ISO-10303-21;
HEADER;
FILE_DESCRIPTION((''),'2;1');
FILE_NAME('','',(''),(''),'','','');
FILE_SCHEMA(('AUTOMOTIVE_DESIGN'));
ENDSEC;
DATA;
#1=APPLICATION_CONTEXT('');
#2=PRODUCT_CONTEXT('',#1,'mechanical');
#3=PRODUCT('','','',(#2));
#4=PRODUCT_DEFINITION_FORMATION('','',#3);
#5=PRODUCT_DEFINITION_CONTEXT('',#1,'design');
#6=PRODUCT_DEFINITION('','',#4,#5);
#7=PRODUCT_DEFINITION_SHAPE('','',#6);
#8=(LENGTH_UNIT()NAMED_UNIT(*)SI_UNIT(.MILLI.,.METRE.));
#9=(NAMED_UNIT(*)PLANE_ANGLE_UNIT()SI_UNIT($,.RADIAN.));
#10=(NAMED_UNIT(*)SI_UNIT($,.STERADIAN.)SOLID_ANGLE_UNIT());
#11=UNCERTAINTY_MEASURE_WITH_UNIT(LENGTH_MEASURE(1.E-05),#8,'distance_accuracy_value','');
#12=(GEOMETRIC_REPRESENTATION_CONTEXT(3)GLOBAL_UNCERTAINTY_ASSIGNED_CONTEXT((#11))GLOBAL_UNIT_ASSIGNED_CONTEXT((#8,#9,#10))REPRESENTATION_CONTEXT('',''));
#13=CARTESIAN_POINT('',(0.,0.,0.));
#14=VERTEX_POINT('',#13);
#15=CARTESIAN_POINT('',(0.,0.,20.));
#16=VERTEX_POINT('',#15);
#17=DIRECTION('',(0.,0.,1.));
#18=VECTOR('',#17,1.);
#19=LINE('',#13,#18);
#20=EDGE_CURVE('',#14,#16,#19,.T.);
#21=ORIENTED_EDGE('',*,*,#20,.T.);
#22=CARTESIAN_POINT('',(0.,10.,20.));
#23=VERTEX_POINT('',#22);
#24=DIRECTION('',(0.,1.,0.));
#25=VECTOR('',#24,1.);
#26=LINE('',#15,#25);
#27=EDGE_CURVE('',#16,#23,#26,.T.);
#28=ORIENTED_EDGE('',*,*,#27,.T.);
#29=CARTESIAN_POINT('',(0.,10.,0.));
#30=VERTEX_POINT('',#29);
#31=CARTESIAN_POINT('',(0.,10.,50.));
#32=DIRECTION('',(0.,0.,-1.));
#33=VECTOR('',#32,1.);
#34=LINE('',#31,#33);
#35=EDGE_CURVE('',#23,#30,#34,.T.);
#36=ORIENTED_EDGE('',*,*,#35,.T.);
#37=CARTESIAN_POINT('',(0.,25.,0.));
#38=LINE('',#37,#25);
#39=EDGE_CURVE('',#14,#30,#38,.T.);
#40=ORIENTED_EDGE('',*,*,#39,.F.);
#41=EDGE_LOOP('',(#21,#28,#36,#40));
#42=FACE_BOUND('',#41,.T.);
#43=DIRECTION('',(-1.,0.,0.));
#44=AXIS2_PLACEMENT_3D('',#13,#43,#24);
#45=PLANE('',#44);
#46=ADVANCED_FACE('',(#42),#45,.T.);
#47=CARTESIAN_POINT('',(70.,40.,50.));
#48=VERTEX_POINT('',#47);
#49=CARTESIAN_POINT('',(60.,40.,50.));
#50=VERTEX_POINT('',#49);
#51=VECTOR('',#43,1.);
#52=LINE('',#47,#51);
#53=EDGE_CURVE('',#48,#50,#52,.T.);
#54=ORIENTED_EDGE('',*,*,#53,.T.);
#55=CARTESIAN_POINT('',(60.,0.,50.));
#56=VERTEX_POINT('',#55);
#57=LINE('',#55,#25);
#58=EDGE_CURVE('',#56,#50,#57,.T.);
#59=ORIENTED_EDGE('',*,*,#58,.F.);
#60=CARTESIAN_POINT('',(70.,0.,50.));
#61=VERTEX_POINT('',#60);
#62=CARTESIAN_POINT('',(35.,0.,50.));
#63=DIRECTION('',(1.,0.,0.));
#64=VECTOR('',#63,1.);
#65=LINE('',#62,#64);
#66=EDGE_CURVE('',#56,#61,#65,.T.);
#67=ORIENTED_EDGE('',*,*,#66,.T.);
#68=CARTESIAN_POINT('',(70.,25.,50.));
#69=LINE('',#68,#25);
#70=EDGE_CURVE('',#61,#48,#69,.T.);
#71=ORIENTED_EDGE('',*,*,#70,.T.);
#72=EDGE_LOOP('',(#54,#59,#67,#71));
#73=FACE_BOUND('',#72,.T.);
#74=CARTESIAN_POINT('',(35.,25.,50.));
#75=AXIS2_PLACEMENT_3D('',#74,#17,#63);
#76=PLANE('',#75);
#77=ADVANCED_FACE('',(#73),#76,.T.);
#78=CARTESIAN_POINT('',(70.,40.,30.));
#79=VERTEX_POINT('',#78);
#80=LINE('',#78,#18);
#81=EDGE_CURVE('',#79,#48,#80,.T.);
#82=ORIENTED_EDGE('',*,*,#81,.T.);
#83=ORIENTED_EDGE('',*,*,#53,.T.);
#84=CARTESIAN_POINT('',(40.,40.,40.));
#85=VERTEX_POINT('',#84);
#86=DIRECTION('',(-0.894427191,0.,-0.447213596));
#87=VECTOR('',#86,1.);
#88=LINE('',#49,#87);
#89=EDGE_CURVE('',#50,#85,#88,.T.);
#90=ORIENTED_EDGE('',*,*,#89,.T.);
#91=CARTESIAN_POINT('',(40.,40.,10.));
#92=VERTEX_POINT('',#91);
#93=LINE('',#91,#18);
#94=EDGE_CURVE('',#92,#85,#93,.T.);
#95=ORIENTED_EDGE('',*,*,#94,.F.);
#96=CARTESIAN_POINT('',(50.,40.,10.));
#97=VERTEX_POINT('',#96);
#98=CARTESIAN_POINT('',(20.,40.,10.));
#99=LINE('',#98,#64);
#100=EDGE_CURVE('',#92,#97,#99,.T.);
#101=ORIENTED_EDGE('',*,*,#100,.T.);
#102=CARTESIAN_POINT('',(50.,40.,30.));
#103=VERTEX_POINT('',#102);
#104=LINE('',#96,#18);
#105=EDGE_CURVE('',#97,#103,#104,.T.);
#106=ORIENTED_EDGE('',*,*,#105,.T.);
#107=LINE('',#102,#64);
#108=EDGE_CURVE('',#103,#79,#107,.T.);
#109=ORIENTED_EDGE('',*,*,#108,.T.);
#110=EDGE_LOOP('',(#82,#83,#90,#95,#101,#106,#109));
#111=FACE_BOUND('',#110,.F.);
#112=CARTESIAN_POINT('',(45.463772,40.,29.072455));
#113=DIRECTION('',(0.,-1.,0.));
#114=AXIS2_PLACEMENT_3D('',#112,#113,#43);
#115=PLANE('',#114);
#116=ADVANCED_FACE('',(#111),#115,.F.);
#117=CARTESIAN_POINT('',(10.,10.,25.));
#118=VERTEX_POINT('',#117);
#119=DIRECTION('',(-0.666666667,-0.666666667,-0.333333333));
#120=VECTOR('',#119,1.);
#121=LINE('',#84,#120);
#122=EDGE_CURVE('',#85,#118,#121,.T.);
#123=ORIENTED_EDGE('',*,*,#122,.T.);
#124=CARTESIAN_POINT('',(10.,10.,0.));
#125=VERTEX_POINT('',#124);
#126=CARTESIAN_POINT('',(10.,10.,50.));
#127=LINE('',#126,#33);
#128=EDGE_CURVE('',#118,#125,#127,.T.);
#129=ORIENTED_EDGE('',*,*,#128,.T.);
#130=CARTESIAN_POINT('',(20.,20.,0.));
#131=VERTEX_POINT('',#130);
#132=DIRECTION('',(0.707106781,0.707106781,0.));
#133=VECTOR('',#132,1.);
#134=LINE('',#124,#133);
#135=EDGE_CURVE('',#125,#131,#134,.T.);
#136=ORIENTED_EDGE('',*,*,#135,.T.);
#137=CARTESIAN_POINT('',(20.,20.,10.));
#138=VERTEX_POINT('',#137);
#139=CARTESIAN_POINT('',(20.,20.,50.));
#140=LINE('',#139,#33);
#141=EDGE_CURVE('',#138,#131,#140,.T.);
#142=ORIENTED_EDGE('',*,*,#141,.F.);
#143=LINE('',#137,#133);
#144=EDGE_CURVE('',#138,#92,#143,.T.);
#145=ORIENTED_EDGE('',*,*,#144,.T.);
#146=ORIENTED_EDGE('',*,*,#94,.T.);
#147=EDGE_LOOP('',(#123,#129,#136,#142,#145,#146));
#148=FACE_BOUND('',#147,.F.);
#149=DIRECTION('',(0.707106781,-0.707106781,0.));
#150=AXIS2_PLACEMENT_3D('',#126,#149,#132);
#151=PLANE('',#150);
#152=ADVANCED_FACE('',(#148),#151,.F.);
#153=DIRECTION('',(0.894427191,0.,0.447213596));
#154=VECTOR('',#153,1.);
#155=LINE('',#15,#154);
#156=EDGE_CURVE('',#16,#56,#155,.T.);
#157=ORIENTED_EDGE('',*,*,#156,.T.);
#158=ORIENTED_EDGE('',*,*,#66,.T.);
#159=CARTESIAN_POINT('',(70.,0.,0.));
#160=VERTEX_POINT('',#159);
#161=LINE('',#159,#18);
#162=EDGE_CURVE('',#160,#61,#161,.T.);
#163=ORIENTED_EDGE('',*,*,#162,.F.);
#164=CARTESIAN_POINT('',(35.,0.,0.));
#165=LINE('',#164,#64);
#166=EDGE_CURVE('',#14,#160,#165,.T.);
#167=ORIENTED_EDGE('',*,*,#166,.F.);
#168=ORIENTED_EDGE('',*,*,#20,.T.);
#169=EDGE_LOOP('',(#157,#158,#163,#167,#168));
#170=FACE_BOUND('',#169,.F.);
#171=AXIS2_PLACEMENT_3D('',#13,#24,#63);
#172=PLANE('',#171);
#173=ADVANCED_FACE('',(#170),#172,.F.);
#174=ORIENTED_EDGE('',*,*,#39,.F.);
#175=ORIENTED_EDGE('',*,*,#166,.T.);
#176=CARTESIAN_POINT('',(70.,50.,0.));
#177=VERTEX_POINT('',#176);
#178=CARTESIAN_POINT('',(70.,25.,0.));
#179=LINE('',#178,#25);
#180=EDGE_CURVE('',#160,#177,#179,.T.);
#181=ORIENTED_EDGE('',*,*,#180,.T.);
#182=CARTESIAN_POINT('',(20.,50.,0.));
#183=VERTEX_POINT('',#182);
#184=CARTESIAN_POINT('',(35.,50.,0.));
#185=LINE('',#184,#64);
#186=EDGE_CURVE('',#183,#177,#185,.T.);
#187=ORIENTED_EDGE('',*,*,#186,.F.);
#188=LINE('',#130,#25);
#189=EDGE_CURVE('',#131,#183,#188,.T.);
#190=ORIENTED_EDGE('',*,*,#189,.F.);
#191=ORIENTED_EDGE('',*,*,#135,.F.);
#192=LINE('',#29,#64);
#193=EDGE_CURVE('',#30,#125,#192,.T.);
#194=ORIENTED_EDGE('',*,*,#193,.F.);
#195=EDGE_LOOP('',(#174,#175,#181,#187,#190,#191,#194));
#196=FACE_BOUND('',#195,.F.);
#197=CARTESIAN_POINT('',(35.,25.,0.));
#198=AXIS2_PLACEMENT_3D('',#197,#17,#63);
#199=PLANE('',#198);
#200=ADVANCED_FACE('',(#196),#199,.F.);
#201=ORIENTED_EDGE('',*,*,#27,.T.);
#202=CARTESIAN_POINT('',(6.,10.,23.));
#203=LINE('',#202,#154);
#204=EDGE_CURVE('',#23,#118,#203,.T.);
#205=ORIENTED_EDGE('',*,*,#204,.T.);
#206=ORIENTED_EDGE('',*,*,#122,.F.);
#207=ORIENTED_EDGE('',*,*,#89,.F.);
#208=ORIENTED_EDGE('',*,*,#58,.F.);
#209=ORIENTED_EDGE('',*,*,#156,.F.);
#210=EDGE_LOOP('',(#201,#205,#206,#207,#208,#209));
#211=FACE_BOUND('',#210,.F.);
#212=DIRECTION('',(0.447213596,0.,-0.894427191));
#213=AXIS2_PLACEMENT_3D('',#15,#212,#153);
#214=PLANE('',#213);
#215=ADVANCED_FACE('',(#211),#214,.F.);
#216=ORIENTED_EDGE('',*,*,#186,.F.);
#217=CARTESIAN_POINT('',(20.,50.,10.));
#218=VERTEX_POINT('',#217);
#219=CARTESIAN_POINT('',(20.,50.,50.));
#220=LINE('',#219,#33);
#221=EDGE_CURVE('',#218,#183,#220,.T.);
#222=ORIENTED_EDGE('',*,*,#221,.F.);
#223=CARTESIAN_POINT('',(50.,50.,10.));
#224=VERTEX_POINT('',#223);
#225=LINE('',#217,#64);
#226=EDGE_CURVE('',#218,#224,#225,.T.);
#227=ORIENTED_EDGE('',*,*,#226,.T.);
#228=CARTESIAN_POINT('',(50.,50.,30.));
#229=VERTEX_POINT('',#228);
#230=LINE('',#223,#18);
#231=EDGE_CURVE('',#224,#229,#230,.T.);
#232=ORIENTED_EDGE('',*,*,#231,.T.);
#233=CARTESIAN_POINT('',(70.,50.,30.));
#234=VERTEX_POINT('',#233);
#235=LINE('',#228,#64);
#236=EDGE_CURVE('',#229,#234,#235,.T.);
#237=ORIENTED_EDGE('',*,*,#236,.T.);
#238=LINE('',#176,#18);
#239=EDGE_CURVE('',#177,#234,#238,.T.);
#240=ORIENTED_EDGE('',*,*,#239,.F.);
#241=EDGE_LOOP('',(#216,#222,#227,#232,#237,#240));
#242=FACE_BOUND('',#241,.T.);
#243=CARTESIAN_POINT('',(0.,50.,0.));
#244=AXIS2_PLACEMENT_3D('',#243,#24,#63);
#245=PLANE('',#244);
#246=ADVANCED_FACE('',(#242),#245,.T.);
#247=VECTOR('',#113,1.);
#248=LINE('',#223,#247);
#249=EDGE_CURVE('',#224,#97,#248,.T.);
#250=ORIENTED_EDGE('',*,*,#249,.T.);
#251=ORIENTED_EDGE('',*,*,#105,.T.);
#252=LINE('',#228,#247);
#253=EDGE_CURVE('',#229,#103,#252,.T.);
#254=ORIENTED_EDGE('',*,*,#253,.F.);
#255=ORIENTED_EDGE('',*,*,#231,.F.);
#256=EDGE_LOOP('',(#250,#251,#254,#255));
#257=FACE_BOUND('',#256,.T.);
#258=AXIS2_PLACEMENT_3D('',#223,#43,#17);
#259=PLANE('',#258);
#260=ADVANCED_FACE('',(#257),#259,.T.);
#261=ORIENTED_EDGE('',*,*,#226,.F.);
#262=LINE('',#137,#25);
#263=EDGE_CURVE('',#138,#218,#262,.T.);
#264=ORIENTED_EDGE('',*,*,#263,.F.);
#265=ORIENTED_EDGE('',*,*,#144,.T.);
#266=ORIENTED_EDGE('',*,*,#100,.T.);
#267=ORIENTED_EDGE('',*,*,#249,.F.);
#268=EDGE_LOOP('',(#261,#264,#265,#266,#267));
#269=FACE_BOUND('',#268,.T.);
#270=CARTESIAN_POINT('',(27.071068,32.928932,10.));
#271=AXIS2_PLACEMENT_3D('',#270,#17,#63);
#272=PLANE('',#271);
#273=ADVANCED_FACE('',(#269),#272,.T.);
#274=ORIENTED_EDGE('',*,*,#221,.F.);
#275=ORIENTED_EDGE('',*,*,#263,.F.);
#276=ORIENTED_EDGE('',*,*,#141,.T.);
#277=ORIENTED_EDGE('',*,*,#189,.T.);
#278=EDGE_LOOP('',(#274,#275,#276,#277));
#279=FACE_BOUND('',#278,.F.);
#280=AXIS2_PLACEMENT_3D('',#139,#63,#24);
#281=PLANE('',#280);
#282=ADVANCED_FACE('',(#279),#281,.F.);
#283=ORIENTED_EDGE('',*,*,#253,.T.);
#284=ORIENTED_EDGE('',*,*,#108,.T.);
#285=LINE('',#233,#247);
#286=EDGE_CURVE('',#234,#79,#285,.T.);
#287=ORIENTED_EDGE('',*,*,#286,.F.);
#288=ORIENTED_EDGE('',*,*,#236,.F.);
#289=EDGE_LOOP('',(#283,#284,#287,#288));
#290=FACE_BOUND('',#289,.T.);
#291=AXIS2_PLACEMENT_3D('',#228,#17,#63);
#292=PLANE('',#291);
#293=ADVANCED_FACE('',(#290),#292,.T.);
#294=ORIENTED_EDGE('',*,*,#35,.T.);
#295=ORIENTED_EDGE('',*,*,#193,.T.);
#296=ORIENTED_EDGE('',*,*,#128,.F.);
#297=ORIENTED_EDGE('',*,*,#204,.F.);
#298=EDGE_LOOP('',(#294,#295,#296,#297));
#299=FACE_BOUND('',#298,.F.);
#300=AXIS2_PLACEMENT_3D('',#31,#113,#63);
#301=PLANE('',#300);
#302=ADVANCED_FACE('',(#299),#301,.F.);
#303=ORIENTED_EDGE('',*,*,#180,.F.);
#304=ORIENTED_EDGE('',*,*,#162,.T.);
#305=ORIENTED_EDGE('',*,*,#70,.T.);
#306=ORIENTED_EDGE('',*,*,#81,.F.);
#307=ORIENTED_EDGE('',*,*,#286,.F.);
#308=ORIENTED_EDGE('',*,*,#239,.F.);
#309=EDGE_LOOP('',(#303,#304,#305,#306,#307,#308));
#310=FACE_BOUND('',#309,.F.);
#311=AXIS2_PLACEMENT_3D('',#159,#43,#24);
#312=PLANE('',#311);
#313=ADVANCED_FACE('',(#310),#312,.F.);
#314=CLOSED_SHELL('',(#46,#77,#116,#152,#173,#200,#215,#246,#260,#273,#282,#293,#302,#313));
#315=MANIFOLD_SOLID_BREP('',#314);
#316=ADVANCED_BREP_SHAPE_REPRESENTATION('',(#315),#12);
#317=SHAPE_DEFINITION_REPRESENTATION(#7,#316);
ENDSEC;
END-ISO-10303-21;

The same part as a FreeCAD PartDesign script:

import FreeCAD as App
import Part
import Sketcher

doc = App.newDocument("Part")
body = doc.addObject("PartDesign::Body", "Body")

sketch1 = body.newObject("Sketcher::SketchObject", "Sketch")
sketch1.AttachmentSupport = (doc.getObject("XY_Plane"), [""])
sketch1.MapMode = "FlatFace"
sketch1.addGeometry([
    Part.LineSegment(App.Vector(0, 50, 0), App.Vector(0, 0, 0)),
    Part.LineSegment(App.Vector(0, 0, 0), App.Vector(70, 0, 0)),
    Part.LineSegment(App.Vector(70, 0, 0), App.Vector(70, 50, 0)),
    Part.LineSegment(App.Vector(70, 50, 0), App.Vector(0, 50, 0)),
], False)
sketch1.addConstraint([
    Sketcher.Constraint("Coincident", 0, 2, 1, 1),
    Sketcher.Constraint("Coincident", 1, 2, 2, 1),
    Sketcher.Constraint("Coincident", 2, 2, 3, 1),
    Sketcher.Constraint("Coincident", 3, 2, 0, 1),
    Sketcher.Constraint("Vertical", 0),
    Sketcher.Constraint("Horizontal", 1),
    Sketcher.Constraint("Vertical", 2),
    Sketcher.Constraint("Horizontal", 3),
    Sketcher.Constraint("Coincident", 0, 2, -1, 1),
    Sketcher.Constraint("DistanceX", 1, 1, 1, 2, 70.0),
    Sketcher.Constraint("DistanceY", 0, 2, 0, 1, 50.0),
])
pad1 = body.newObject("PartDesign::Pad", "Pad")
pad1.Profile = sketch1
pad1.Length = 50

sketch2 = body.newObject("Sketcher::SketchObject", "Sketch001")
sketch2.AttachmentSupport = (doc.getObject("XY_Plane"), [""])
sketch2.MapMode = "FlatFace"
sketch2.AttachmentOffset = App.Placement(App.Vector(0, 0, 50), App.Rotation())
sketch2.addGeometry([
    Part.LineSegment(App.Vector(0, 10, 0), App.Vector(10, 10, 0)),
    Part.LineSegment(App.Vector(10, 10, 0), App.Vector(20, 20, 0)),
    Part.LineSegment(App.Vector(20, 20, 0), App.Vector(20, 50, 0)),
    Part.LineSegment(App.Vector(20, 50, 0), App.Vector(0, 50, 0)),
    Part.LineSegment(App.Vector(0, 50, 0), App.Vector(0, 10, 0)),
], False)
sketch2.addConstraint([
    Sketcher.Constraint("Coincident", 0, 2, 1, 1),
    Sketcher.Constraint("Coincident", 1, 2, 2, 1),
    Sketcher.Constraint("Coincident", 2, 2, 3, 1),
    Sketcher.Constraint("Coincident", 3, 2, 4, 1),
    Sketcher.Constraint("Coincident", 4, 2, 0, 1),
    Sketcher.Constraint("Horizontal", 0),
    Sketcher.Constraint("Vertical", 2),
    Sketcher.Constraint("Horizontal", 3),
    Sketcher.Constraint("Vertical", 4),
    Sketcher.Constraint("PointOnObject", 3, 2, -2),
    Sketcher.Constraint("DistanceX", 0, 1, 0, 2, 10.0),
    Sketcher.Constraint("DistanceX", 3, 2, 3, 1, 20.0),
    Sketcher.Constraint("DistanceY", 2, 1, 2, 2, 30.0),
    Sketcher.Constraint("DistanceY", 4, 2, 4, 1, 40.0),
    Sketcher.Constraint("DistanceY", -1, 1, 0, 2, 10.0),
])
pocket1 = body.newObject("PartDesign::Pocket", "Pocket")
pocket1.Profile = sketch2
pocket1.Length = 50

sketch3 = body.newObject("Sketcher::SketchObject", "Sketch002")
sketch3.AttachmentSupport = (doc.getObject("XZ_Plane"), [""])
sketch3.MapMode = "FlatFace"
sketch3.addGeometry([
    Part.LineSegment(App.Vector(0, 20, 0), App.Vector(60, 50, 0)),
    Part.LineSegment(App.Vector(60, 50, 0), App.Vector(0, 50, 0)),
    Part.LineSegment(App.Vector(0, 50, 0), App.Vector(0, 20, 0)),
], False)
sketch3.addConstraint([
    Sketcher.Constraint("Coincident", 0, 2, 1, 1),
    Sketcher.Constraint("Coincident", 1, 2, 2, 1),
    Sketcher.Constraint("Coincident", 2, 2, 0, 1),
    Sketcher.Constraint("Horizontal", 1),
    Sketcher.Constraint("Vertical", 2),
    Sketcher.Constraint("PointOnObject", 1, 2, -2),
    Sketcher.Constraint("DistanceX", 1, 2, 1, 1, 60.0),
    Sketcher.Constraint("DistanceY", 2, 2, 2, 1, 30.0),
    Sketcher.Constraint("DistanceY", -1, 1, 0, 2, 50.0),
])
pocket2 = body.newObject("PartDesign::Pocket", "Pocket001")
pocket2.Profile = sketch3
pocket2.Length = 50

sketch4 = body.newObject("Sketcher::SketchObject", "Sketch003")
sketch4.AttachmentSupport = (doc.getObject("XZ_Plane"), [""])
sketch4.MapMode = "FlatFace"
sketch4.AttachmentOffset = App.Placement(App.Vector(0, 0, -50), App.Rotation())
sketch4.addGeometry([
    Part.LineSegment(App.Vector(50, 10, 0), App.Vector(20, 10, 0)),
    Part.LineSegment(App.Vector(20, 10, 0), App.Vector(20, 30, 0)),
    Part.LineSegment(App.Vector(20, 30, 0), App.Vector(60, 50, 0)),
    Part.LineSegment(App.Vector(60, 50, 0), App.Vector(70, 50, 0)),
    Part.LineSegment(App.Vector(70, 50, 0), App.Vector(70, 30, 0)),
    Part.LineSegment(App.Vector(70, 30, 0), App.Vector(50, 30, 0)),
    Part.LineSegment(App.Vector(50, 30, 0), App.Vector(50, 10, 0)),
], False)
sketch4.addConstraint([
    Sketcher.Constraint("Coincident", 0, 2, 1, 1),
    Sketcher.Constraint("Coincident", 1, 2, 2, 1),
    Sketcher.Constraint("Coincident", 2, 2, 3, 1),
    Sketcher.Constraint("Coincident", 3, 2, 4, 1),
    Sketcher.Constraint("Coincident", 4, 2, 5, 1),
    Sketcher.Constraint("Coincident", 5, 2, 6, 1),
    Sketcher.Constraint("Coincident", 6, 2, 0, 1),
    Sketcher.Constraint("Horizontal", 0),
    Sketcher.Constraint("Vertical", 1),
    Sketcher.Constraint("Horizontal", 3),
    Sketcher.Constraint("Vertical", 4),
    Sketcher.Constraint("Horizontal", 5),
    Sketcher.Constraint("Vertical", 6),
    Sketcher.Constraint("Horizontal", 1, 2, 4, 2),
    Sketcher.Constraint("Equal", 5, 1),
    Sketcher.Constraint("Equal", 1, 4),
    Sketcher.Constraint("DistanceX", 0, 2, 0, 1, 30.0),
    Sketcher.Constraint("DistanceX", 3, 1, 3, 2, 10.0),
    Sketcher.Constraint("DistanceX", 5, 2, 5, 1, 20.0),
    Sketcher.Constraint("DistanceX", -1, 1, 0, 2, 20.0),
    Sketcher.Constraint("DistanceY", -1, 1, 0, 2, 10.0),
])
pocket3 = body.newObject("PartDesign::Pocket", "Pocket002")
pocket3.Profile = sketch4
pocket3.Length = 10
pocket3.Reversed = True

sketch5 = body.newObject("Sketcher::SketchObject", "Sketch004")
sketch5.AttachmentSupport = (doc.getObject("XY_Plane"), [""])
sketch5.MapMode = "FlatFace"
sketch5.AttachmentOffset = App.Placement(App.Vector(0, 0, 10), App.Rotation())
sketch5.addGeometry([
    Part.LineSegment(App.Vector(20, 20, 0), App.Vector(40, 40, 0)),
    Part.LineSegment(App.Vector(40, 40, 0), App.Vector(20, 40, 0)),
    Part.LineSegment(App.Vector(20, 40, 0), App.Vector(20, 20, 0)),
], False)
sketch5.addConstraint([
    Sketcher.Constraint("Coincident", 0, 2, 1, 1),
    Sketcher.Constraint("Coincident", 1, 2, 2, 1),
    Sketcher.Constraint("Coincident", 2, 2, 0, 1),
    Sketcher.Constraint("Horizontal", 1),
    Sketcher.Constraint("Vertical", 2),
    Sketcher.Constraint("Equal", 1, 2),
    Sketcher.Constraint("DistanceX", 1, 2, 1, 1, 20.0),
    Sketcher.Constraint("DistanceX", -1, 1, 0, 2, 40.0),
    Sketcher.Constraint("DistanceY", -1, 1, 0, 2, 40.0),
])
pocket4 = body.newObject("PartDesign::Pocket", "Pocket003")
pocket4.Profile = sketch5
pocket4.Length = 57
pocket4.Reversed = True

doc.recompute()
